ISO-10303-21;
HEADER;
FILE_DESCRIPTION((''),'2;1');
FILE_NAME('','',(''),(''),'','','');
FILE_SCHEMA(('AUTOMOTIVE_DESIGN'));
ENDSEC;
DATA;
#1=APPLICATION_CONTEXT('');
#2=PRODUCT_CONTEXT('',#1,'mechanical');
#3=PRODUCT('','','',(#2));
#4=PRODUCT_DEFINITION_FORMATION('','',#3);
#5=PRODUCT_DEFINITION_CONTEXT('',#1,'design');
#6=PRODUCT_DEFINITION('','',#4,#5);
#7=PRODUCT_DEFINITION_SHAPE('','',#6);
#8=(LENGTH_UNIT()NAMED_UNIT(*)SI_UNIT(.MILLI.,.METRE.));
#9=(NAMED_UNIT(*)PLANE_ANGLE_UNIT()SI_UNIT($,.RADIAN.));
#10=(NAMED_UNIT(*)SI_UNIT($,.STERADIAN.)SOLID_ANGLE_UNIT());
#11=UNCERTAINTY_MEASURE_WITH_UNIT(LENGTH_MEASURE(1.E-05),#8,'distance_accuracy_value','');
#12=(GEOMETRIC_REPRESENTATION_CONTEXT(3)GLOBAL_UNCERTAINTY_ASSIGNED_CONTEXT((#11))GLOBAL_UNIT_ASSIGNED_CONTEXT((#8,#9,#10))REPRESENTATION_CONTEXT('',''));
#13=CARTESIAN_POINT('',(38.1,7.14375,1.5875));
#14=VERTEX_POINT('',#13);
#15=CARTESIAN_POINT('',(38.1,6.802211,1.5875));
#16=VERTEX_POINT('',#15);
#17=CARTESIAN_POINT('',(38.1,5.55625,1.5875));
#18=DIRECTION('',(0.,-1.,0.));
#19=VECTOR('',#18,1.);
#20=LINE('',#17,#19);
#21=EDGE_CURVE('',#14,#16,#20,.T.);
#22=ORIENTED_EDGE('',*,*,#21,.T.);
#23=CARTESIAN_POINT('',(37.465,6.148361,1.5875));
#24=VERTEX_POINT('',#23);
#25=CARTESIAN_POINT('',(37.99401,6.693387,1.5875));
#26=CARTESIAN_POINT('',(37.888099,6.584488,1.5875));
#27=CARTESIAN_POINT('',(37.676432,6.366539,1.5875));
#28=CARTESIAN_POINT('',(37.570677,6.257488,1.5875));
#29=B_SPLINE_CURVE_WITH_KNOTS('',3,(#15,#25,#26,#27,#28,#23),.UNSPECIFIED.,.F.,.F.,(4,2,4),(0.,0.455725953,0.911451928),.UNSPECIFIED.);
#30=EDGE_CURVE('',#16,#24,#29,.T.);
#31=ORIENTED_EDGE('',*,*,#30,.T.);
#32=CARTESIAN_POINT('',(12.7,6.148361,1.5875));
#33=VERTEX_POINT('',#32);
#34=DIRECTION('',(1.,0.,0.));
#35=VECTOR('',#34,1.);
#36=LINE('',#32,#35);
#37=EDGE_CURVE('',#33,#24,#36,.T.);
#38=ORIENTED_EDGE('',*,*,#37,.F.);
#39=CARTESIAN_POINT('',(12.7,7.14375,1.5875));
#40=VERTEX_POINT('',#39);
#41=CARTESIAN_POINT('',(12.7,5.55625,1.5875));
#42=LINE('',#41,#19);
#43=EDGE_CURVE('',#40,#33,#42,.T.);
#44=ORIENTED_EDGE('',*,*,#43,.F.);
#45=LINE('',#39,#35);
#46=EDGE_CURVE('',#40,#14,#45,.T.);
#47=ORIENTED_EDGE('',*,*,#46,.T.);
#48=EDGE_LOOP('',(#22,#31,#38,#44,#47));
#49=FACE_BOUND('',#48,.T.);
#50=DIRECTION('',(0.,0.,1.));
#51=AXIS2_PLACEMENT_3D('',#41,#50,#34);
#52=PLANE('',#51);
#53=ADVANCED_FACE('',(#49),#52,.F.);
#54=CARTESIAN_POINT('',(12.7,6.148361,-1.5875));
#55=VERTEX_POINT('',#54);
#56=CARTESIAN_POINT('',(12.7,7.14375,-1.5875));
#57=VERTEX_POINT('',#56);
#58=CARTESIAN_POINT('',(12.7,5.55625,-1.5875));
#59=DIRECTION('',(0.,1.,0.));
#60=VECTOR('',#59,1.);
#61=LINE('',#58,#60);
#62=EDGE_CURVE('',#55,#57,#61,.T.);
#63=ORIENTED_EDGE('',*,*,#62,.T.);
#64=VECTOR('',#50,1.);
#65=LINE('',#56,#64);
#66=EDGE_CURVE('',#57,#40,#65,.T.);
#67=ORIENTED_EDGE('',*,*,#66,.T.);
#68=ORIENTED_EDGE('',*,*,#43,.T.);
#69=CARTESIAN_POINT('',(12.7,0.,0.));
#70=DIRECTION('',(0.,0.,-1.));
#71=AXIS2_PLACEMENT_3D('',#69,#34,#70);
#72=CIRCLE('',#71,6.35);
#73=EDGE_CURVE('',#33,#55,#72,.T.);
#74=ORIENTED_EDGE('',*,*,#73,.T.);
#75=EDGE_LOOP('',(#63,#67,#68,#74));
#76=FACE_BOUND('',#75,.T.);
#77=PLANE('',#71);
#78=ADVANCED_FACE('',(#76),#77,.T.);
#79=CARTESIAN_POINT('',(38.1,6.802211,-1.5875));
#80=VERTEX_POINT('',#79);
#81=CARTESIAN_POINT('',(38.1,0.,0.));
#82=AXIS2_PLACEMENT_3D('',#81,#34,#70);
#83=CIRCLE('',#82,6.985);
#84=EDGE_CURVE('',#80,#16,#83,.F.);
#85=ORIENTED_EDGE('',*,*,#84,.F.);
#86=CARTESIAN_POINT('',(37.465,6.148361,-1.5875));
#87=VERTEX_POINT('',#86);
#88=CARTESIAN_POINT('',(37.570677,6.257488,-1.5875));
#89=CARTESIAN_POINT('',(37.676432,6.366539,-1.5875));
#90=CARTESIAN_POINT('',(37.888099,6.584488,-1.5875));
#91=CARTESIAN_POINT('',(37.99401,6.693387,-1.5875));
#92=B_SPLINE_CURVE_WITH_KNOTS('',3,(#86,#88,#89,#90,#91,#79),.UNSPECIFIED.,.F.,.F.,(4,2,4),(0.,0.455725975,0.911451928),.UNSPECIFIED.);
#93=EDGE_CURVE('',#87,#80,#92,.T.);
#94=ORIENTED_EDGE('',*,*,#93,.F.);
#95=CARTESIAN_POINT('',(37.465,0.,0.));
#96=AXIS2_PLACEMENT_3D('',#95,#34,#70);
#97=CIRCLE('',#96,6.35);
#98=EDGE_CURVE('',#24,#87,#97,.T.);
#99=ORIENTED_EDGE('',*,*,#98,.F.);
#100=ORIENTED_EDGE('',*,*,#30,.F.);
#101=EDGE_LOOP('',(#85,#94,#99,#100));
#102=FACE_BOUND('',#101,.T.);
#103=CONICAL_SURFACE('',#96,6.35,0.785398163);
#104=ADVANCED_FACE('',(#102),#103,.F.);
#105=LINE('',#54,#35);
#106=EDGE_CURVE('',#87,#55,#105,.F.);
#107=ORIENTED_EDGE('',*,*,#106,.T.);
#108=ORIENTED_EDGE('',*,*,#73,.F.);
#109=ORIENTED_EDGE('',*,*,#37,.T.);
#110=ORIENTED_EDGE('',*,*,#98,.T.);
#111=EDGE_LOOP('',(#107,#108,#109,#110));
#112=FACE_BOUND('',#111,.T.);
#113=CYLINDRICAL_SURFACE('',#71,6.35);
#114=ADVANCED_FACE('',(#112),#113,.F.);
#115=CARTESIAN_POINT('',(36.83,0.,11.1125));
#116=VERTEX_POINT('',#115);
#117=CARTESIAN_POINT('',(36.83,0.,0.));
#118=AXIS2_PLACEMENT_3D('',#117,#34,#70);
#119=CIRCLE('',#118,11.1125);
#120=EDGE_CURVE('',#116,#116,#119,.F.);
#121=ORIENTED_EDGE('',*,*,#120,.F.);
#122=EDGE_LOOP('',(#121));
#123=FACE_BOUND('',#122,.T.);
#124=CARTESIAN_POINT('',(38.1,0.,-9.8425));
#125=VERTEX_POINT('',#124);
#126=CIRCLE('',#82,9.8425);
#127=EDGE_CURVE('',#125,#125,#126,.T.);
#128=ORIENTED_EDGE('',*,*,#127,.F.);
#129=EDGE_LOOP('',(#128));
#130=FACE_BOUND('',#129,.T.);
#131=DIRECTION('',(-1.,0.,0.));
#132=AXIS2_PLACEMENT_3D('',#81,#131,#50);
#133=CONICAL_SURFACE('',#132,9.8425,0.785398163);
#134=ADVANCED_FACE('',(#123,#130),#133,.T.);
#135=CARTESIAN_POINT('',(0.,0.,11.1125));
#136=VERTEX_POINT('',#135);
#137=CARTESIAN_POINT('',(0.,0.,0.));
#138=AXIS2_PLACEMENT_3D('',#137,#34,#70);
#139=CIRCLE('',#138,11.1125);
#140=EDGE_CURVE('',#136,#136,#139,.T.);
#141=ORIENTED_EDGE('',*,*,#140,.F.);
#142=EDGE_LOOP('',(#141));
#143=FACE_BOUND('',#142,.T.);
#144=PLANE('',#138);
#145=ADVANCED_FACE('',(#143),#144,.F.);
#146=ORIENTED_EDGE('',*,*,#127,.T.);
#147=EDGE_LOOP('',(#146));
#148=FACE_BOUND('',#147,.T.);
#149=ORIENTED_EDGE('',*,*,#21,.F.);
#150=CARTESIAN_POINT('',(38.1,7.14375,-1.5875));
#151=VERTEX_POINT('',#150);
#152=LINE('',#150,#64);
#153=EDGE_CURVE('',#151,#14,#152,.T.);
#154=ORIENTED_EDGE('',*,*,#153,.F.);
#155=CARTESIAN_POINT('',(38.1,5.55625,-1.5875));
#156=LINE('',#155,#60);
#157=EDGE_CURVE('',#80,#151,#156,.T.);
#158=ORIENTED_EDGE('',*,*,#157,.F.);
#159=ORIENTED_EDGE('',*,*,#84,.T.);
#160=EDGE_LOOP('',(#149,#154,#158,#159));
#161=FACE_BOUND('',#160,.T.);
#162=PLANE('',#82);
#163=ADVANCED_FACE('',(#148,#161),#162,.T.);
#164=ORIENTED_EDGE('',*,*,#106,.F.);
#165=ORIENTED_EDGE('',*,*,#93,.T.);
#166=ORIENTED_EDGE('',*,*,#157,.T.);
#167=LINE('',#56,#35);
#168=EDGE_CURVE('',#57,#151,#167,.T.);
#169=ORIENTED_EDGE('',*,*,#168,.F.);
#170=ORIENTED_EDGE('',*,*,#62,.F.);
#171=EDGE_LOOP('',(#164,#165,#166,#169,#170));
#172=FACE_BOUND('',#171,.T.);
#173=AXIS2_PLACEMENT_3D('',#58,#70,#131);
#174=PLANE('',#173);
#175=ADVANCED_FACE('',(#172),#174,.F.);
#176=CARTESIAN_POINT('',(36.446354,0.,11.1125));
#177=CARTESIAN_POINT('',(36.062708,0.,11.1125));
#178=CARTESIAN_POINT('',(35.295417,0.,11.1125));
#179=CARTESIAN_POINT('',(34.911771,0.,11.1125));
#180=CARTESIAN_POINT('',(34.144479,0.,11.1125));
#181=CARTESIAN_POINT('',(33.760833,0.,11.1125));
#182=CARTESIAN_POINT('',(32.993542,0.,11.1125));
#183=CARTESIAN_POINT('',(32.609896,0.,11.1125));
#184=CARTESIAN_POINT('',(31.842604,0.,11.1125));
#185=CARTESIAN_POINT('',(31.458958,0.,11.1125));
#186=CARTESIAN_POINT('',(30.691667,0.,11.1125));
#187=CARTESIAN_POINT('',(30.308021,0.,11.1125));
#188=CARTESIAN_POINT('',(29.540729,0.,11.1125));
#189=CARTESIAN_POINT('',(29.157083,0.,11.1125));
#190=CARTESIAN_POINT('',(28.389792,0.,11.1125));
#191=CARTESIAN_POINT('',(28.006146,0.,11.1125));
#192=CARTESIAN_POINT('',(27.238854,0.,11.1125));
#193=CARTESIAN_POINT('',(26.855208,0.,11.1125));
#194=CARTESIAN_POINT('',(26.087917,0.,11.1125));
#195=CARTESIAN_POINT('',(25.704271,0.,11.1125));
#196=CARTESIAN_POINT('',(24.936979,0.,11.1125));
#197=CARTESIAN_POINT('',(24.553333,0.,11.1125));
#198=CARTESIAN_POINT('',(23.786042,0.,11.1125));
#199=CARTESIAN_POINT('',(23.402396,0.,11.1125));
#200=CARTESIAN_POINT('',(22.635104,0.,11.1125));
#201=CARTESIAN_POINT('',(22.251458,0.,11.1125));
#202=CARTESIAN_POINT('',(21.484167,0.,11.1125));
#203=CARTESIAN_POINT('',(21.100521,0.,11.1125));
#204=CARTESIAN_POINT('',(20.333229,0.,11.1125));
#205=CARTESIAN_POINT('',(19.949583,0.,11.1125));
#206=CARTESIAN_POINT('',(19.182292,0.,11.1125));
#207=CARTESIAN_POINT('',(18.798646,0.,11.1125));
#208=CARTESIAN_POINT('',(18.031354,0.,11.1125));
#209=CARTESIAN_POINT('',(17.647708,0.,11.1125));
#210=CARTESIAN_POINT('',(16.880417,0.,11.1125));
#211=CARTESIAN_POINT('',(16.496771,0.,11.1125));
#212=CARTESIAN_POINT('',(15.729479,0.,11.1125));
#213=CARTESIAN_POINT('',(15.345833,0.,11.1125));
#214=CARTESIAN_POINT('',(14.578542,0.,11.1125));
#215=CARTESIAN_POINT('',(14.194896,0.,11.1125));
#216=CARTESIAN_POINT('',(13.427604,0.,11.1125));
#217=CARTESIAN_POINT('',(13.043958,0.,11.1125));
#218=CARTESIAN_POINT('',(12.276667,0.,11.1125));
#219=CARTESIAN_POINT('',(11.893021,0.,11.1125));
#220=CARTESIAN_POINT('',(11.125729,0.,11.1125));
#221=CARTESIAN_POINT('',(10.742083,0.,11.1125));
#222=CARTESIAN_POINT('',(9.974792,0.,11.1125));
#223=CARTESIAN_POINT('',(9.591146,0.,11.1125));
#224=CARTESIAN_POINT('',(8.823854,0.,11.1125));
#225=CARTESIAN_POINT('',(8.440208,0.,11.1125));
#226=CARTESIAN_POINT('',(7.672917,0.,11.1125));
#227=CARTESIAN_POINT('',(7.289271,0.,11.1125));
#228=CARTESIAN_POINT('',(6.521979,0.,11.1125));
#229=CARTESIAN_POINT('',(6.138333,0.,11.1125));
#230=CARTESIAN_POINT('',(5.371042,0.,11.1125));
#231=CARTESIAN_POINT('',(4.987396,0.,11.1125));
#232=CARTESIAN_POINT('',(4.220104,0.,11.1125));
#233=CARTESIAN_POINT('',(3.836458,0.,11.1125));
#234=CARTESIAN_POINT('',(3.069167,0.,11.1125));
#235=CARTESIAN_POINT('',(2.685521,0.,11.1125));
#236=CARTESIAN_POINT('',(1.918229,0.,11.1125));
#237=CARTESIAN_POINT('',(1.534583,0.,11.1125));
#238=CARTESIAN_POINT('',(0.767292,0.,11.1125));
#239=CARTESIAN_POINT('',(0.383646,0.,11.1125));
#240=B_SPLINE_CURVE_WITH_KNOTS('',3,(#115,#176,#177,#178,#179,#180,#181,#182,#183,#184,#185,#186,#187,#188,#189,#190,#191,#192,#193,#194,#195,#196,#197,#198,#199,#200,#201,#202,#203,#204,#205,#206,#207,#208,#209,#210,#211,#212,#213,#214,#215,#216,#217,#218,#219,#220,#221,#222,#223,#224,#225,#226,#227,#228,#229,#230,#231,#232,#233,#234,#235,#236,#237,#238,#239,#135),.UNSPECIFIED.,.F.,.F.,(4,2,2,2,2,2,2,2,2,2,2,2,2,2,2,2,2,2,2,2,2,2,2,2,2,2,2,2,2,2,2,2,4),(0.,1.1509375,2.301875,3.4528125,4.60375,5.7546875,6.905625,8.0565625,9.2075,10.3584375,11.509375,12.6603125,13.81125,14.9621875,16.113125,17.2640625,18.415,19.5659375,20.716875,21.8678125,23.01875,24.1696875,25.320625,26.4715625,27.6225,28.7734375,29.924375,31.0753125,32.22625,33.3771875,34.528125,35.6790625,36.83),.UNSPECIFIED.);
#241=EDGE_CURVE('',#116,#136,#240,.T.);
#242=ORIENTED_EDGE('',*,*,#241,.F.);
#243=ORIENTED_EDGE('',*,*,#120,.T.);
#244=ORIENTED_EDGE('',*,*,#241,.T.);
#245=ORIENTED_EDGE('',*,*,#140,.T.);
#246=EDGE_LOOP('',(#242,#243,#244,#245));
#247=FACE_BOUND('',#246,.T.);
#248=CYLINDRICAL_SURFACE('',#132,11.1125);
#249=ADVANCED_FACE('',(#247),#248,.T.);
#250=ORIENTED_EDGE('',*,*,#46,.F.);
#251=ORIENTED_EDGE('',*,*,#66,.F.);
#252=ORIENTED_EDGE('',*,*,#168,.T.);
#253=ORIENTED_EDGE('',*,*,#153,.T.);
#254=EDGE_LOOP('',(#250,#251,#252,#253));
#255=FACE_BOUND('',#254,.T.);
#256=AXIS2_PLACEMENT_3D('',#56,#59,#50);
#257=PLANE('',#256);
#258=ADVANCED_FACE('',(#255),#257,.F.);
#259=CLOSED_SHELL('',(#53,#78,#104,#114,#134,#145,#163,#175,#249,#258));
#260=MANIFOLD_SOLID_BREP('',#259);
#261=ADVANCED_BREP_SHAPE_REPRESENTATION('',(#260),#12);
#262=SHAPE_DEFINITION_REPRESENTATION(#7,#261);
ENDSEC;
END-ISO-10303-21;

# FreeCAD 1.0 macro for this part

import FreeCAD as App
import Part
import Sketcher
Q = App.Units.Quantity


def edges_at(feature, points):
    """Names of the edges that pass closest to the given points."""
    edges = feature.Shape.Edges
    near = lambda p: min(range(len(edges)), key=lambda i: edges[i].distToShape(Part.Vertex(*p))[0])
    return sorted({f"Edge{near(p) + 1}" for p in points})

doc = App.newDocument("Part")
body = doc.addObject("PartDesign::Body", "Body")

# Sketch on YZ plane
sketch1 = body.newObject("Sketcher::SketchObject", "Sketch")
sketch1.AttachmentSupport = (doc.getObject("YZ_Plane"), [""])
sketch1.MapMode = "FlatFace"
sketch1.addGeometry(Part.Circle(App.Vector(0, 0, 0), App.Vector(0, 0, 1), 11), False)
sketch1.addConstraint([
    Sketcher.Constraint("Coincident", 0, 3, -1, 1),
    Sketcher.Constraint("Diameter", 0, Q("0.875 in")),
])
pad1 = body.newObject("PartDesign::Pad", "Pad")
pad1.Profile = sketch1
pad1.Length = Q("1.5 in")

# Sketch on YZ plane
sketch2 = body.newObject("Sketcher::SketchObject", "Sketch001")
sketch2.AttachmentSupport = (doc.getObject("YZ_Plane"), [""])
sketch2.MapMode = "FlatFace"
sketch2.AttachmentOffset = App.Placement(App.Vector(0, 0, 1.5 * 25.4), App.Rotation())
sketch2.addGeometry(Part.Circle(App.Vector(0, 0, 0), App.Vector(0, 0, 1), 6), False)
sketch2.addConstraint([
    Sketcher.Constraint("Coincident", 0, 3, -1, 1),
    Sketcher.Constraint("Diameter", 0, Q("0.5 in")),
])
pocket1 = body.newObject("PartDesign::Pocket", "Pocket")
pocket1.Profile = sketch2
pocket1.Length = Q("1 in")

# Sketch on YZ plane
sketch3 = body.newObject("Sketcher::SketchObject", "Sketch002")
sketch3.AttachmentSupport = (doc.getObject("YZ_Plane"), [""])
sketch3.MapMode = "FlatFace"
sketch3.AttachmentOffset = App.Placement(App.Vector(0, 0, 1.5 * 25.4), App.Rotation())
sketch3.addGeometry([
    Part.LineSegment(App.Vector(7.1, 1.6, 0), App.Vector(5.6, 1.6, 0)),
    Part.LineSegment(App.Vector(5.6, 1.6, 0), App.Vector(5.6, -1.6, 0)),
    Part.LineSegment(App.Vector(5.6, -1.6, 0), App.Vector(7.1, -1.6, 0)),
    Part.LineSegment(App.Vector(7.1, -1.6, 0), App.Vector(7.1, 1.6, 0)),
], False)
sketch3.addConstraint([
    Sketcher.Constraint("Coincident", 0, 2, 1, 1),
    Sketcher.Constraint("Coincident", 1, 2, 2, 1),
    Sketcher.Constraint("Coincident", 2, 2, 3, 1),
    Sketcher.Constraint("Coincident", 3, 2, 0, 1),
    Sketcher.Constraint("Horizontal", 0),
    Sketcher.Constraint("Vertical", 1),
    Sketcher.Constraint("Horizontal", 2),
    Sketcher.Constraint("Vertical", 3),
    Sketcher.Constraint("DistanceX", 0, 2, 0, 1, Q("0.0625 in")),
    Sketcher.Constraint("DistanceY", 1, 2, 1, 1, Q("0.125 in")),
    Sketcher.Constraint("DistanceX", -1, 1, 0, 2, Q("0.21875 in")),
    Sketcher.Constraint("DistanceY", -1, 1, 0, 2, Q("0.0625 in")),
])
pocket2 = body.newObject("PartDesign::Pocket", "Pocket001")
pocket2.Profile = sketch3
pocket2.Length = Q("1 in")
doc.recompute()

chamfer = body.newObject("PartDesign::Chamfer", "Chamfer")
chamfer.Base = (pocket2, edges_at(pocket2, [(38.1, -6.35, 0)]))
chamfer.Size = Q("0.025 in")
doc.recompute()

chamfer2 = body.newObject("PartDesign::Chamfer", "Chamfer001")
chamfer2.Base = (chamfer, edges_at(chamfer, [(38.1, 0, -11.113)]))
chamfer2.Size = Q("0.05 in")

doc.recompute()
